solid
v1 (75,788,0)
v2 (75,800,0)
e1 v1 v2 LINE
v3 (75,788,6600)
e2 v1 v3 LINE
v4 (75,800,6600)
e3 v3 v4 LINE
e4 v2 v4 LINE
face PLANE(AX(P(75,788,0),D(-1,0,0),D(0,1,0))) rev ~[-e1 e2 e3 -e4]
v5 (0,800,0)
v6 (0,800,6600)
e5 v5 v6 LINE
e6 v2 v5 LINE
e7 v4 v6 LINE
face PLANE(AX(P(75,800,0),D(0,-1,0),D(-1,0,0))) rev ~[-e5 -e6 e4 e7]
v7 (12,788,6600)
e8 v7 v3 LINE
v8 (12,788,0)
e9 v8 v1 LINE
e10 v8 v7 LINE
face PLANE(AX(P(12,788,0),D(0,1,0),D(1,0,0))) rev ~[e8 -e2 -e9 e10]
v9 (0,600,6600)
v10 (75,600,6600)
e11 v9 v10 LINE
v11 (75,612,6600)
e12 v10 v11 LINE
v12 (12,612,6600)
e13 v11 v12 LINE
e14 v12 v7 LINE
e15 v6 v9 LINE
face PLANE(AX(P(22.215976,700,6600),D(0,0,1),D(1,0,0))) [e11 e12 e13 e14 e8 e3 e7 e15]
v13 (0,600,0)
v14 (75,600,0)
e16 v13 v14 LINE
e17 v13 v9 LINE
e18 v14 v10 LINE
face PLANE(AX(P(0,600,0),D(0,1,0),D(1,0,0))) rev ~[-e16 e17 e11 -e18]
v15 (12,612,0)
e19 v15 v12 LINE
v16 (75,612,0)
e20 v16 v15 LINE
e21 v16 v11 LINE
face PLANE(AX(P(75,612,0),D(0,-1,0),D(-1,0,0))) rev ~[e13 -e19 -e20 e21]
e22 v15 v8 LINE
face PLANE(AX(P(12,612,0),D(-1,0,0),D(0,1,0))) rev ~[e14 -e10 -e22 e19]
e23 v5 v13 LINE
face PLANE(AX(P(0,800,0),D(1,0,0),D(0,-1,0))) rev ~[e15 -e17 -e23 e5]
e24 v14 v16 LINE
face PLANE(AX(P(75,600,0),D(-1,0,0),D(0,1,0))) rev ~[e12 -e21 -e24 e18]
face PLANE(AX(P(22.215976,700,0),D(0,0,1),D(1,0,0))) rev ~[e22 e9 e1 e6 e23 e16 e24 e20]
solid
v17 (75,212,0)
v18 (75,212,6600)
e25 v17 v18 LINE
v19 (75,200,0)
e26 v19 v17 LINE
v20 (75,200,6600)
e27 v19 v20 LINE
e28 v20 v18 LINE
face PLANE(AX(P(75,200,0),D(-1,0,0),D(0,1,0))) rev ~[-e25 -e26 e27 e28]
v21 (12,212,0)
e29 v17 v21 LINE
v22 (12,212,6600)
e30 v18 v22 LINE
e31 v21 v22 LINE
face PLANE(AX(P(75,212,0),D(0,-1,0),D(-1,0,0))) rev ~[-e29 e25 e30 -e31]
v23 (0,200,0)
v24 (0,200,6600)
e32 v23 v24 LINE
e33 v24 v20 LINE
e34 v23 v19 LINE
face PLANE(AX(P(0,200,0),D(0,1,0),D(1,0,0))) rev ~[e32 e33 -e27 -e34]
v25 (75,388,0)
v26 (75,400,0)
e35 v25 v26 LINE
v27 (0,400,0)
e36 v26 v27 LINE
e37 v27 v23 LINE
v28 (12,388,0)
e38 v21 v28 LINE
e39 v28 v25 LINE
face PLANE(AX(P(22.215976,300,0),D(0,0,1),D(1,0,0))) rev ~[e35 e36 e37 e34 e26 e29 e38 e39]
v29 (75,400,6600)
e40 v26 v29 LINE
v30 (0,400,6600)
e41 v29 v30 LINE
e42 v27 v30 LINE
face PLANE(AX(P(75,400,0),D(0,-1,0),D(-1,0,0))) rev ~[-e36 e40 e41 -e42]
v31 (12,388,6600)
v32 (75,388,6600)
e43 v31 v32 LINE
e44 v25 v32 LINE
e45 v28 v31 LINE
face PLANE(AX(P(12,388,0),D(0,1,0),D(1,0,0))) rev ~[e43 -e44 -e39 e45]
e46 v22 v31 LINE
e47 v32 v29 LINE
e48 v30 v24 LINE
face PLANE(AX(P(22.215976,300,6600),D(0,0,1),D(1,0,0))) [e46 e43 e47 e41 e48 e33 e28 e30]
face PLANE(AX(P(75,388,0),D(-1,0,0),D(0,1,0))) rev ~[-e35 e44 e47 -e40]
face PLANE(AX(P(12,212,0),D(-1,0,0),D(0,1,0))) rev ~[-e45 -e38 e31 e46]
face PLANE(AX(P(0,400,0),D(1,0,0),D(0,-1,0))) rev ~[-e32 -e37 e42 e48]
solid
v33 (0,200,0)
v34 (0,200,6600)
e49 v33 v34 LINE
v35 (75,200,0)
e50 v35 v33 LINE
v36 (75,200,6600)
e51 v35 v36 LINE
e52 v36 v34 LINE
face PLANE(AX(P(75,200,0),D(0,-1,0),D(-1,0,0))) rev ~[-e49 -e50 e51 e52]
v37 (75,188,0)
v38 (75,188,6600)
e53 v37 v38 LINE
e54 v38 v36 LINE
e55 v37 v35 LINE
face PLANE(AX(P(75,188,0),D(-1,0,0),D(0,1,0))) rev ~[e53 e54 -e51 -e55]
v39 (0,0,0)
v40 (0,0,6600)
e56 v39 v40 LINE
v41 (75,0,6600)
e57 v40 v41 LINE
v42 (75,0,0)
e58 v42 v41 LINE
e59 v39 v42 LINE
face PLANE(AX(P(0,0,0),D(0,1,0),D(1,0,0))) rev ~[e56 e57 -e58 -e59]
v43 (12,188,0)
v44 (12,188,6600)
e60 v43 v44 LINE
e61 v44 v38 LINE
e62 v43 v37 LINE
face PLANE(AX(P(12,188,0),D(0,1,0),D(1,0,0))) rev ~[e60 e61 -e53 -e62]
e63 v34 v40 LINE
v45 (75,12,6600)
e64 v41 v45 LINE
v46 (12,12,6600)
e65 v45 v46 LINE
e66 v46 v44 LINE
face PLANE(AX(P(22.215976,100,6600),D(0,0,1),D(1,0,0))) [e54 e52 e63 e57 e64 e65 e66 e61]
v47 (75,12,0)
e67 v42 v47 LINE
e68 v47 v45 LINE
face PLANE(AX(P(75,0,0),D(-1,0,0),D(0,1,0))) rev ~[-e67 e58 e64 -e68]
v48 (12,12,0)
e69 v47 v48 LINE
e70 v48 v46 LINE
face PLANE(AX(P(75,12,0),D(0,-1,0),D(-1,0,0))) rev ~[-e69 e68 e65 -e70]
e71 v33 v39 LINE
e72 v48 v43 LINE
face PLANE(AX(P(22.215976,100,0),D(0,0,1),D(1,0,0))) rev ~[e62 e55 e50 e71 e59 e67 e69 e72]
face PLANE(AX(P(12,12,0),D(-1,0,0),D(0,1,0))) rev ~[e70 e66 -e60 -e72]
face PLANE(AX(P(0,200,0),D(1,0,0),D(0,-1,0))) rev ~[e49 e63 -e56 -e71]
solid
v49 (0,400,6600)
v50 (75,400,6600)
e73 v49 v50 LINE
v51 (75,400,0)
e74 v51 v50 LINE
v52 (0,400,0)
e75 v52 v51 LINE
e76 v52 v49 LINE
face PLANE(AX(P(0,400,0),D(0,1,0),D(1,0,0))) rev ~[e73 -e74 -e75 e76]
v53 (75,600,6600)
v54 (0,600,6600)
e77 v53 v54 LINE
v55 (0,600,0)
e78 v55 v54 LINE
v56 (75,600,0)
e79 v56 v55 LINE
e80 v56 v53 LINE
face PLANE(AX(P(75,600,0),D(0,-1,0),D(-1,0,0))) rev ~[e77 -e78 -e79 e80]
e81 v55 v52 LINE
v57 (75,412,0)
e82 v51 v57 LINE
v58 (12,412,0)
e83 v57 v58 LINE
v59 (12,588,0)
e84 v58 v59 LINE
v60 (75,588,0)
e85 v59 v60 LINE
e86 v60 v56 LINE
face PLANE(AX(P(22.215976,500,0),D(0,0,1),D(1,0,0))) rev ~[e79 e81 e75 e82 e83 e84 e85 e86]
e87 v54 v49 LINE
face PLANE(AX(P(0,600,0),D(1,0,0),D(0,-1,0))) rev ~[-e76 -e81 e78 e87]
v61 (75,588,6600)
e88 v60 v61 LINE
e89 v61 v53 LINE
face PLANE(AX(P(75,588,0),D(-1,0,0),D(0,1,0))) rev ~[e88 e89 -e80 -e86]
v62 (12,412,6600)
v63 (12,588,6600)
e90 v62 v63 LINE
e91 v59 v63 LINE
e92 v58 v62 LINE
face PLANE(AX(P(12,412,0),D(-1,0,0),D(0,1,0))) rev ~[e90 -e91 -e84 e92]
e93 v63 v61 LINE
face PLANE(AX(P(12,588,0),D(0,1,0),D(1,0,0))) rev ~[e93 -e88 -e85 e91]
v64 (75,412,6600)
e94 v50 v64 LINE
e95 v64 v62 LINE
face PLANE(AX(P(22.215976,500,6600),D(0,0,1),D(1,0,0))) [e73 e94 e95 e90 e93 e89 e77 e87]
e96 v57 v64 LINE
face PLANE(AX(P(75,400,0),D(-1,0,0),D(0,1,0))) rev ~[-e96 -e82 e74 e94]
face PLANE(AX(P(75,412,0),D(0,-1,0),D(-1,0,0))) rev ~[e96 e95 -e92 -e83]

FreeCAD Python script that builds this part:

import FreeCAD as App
import Part
import Sketcher
from FreeCAD import Vector

doc = App.newDocument("Part")
body = doc.addObject("PartDesign::Body", "Body")

# Sketch on XY plane
sketch1 = body.newObject("Sketcher::SketchObject", "Sketch")
sketch1.AttachmentSupport = (doc.getObject("XY_Plane"), [""])
sketch1.MapMode = "FlatFace"
sketch1.addGeometry([
    Part.LineSegment(Vector(0, 200, 0), Vector(0, 0, 0)),  # 0
    Part.LineSegment(Vector(0, 0, 0), Vector(75, 0, 0)),  # 1
    Part.LineSegment(Vector(75, 0, 0), Vector(75, 12, 0)),  # 2
    Part.LineSegment(Vector(75, 12, 0), Vector(12, 12, 0)),  # 3
    Part.LineSegment(Vector(12, 12, 0), Vector(12, 188, 0)),  # 4
    Part.LineSegment(Vector(12, 188, 0), Vector(75, 188, 0)),  # 5
    Part.LineSegment(Vector(75, 188, 0), Vector(75, 200, 0)),  # 6
    Part.LineSegment(Vector(75, 200, 0), Vector(0, 200, 0)),  # 7
], False)
sketch1.addConstraint([
    Sketcher.Constraint("Coincident", 0, 2, 1, 1),
    Sketcher.Constraint("Coincident", 1, 2, 2, 1),
    Sketcher.Constraint("Coincident", 2, 2, 3, 1),
    Sketcher.Constraint("Coincident", 3, 2, 4, 1),
    Sketcher.Constraint("Coincident", 4, 2, 5, 1),
    Sketcher.Constraint("Coincident", 5, 2, 6, 1),
    Sketcher.Constraint("Coincident", 6, 2, 7, 1),
    Sketcher.Constraint("Coincident", 7, 2, 0, 1),
    Sketcher.Constraint("Vertical", 0),
    Sketcher.Constraint("Horizontal", 1),
    Sketcher.Constraint("Vertical", 2),
    Sketcher.Constraint("Horizontal", 3),
    Sketcher.Constraint("Vertical", 4),
    Sketcher.Constraint("Horizontal", 5),
    Sketcher.Constraint("Vertical", 6),
    Sketcher.Constraint("Horizontal", 7),
    Sketcher.Constraint("Coincident", 0, 2, -1, 1),
    Sketcher.Constraint("Vertical", 2, 2, 5, 2),
    Sketcher.Constraint("Equal", 2, 6),
    Sketcher.Constraint("DistanceX", 1, 1, 1, 2, 75.0),
    Sketcher.Constraint("DistanceX", 3, 2, 3, 1, 63.0),
    Sketcher.Constraint("DistanceY", 0, 2, 0, 1, 200.0),
    Sketcher.Constraint("DistanceY", 2, 1, 2, 2, 12.0),
])
pad1 = body.newObject("PartDesign::Pad", "Pad")
pad1.Profile = sketch1
pad1.Length = 6600
body2 = doc.addObject("PartDesign::Body", "Body001")

# Sketch on XY plane
sketch2 = body2.newObject("Sketcher::SketchObject", "Sketch001")
sketch2.AttachmentSupport = (doc.getObject("XY_Plane001"), [""])
sketch2.MapMode = "FlatFace"
sketch2.addGeometry([
    Part.LineSegment(Vector(0, 400, 0), Vector(0, 200, 0)),  # 0
    Part.LineSegment(Vector(0, 200, 0), Vector(75, 200, 0)),  # 1
    Part.LineSegment(Vector(75, 200, 0), Vector(75, 212, 0)),  # 2
    Part.LineSegment(Vector(75, 212, 0), Vector(12, 212, 0)),  # 3
    Part.LineSegment(Vector(12, 212, 0), Vector(12, 388, 0)),  # 4
    Part.LineSegment(Vector(12, 388, 0), Vector(75, 388, 0)),  # 5
    Part.LineSegment(Vector(75, 388, 0), Vector(75, 400, 0)),  # 6
    Part.LineSegment(Vector(75, 400, 0), Vector(0, 400, 0)),  # 7
], False)
sketch2.addConstraint([
    Sketcher.Constraint("Coincident", 0, 2, 1, 1),
    Sketcher.Constraint("Coincident", 1, 2, 2, 1),
    Sketcher.Constraint("Coincident", 2, 2, 3, 1),
    Sketcher.Constraint("Coincident", 3, 2, 4, 1),
    Sketcher.Constraint("Coincident", 4, 2, 5, 1),
    Sketcher.Constraint("Coincident", 5, 2, 6, 1),
    Sketcher.Constraint("Coincident", 6, 2, 7, 1),
    Sketcher.Constraint("Coincident", 7, 2, 0, 1),
    Sketcher.Constraint("Vertical", 0),
    Sketcher.Constraint("Horizontal", 1),
    Sketcher.Constraint("Vertical", 2),
    Sketcher.Constraint("Horizontal", 3),
    Sketcher.Constraint("Vertical", 4),
    Sketcher.Constraint("Horizontal", 5),
    Sketcher.Constraint("Vertical", 6),
    Sketcher.Constraint("Horizontal", 7),
    Sketcher.Constraint("PointOnObject", 0, 2, -2),
    Sketcher.Constraint("Vertical", 2, 2, 5, 2),
    Sketcher.Constraint("Equal", 2, 6),
    Sketcher.Constraint("DistanceX", 1, 1, 1, 2, 75.0),
    Sketcher.Constraint("DistanceX", 3, 2, 3, 1, 63.0),
    Sketcher.Constraint("DistanceY", 0, 2, 0, 1, 200.0),
    Sketcher.Constraint("DistanceY", 2, 1, 2, 2, 12.0),
    Sketcher.Constraint("DistanceY", -1, 1, 0, 2, 200.0),
])
pad2 = body2.newObject("PartDesign::Pad", "Pad001")
pad2.Profile = sketch2
pad2.Length = 6600
body3 = doc.addObject("PartDesign::Body", "Body002")

# Sketch on XY plane
sketch3 = body3.newObject("Sketcher::SketchObject", "Sketch002")
sketch3.AttachmentSupport = (doc.getObject("XY_Plane002"), [""])
sketch3.MapMode = "FlatFace"
sketch3.addGeometry([
    Part.LineSegment(Vector(0, 600, 0), Vector(0, 400, 0)),  # 0
    Part.LineSegment(Vector(0, 400, 0), Vector(75, 400, 0)),  # 1
    Part.LineSegment(Vector(75, 400, 0), Vector(75, 412, 0)),  # 2
    Part.LineSegment(Vector(75, 412, 0), Vector(12, 412, 0)),  # 3
    Part.LineSegment(Vector(12, 412, 0), Vector(12, 588, 0)),  # 4
    Part.LineSegment(Vector(12, 588, 0), Vector(75, 588, 0)),  # 5
    Part.LineSegment(Vector(75, 588, 0), Vector(75, 600, 0)),  # 6
    Part.LineSegment(Vector(75, 600, 0), Vector(0, 600, 0)),  # 7
], False)
sketch3.addConstraint([
    Sketcher.Constraint("Coincident", 0, 2, 1, 1),
    Sketcher.Constraint("Coincident", 1, 2, 2, 1),
    Sketcher.Constraint("Coincident", 2, 2, 3, 1),
    Sketcher.Constraint("Coincident", 3, 2, 4, 1),
    Sketcher.Constraint("Coincident", 4, 2, 5, 1),
    Sketcher.Constraint("Coincident", 5, 2, 6, 1),
    Sketcher.Constraint("Coincident", 6, 2, 7, 1),
    Sketcher.Constraint("Coincident", 7, 2, 0, 1),
    Sketcher.Constraint("Vertical", 0),
    Sketcher.Constraint("Horizontal", 1),
    Sketcher.Constraint("Vertical", 2),
    Sketcher.Constraint("Horizontal", 3),
    Sketcher.Constraint("Vertical", 4),
    Sketcher.Constraint("Horizontal", 5),
    Sketcher.Constraint("Vertical", 6),
    Sketcher.Constraint("Horizontal", 7),
    Sketcher.Constraint("PointOnObject", 0, 2, -2),
    Sketcher.Constraint("Vertical", 2, 2, 5, 2),
    Sketcher.Constraint("Equal", 2, 6),
    Sketcher.Constraint("DistanceX", 1, 1, 1, 2, 75.0),
    Sketcher.Constraint("DistanceX", 3, 2, 3, 1, 63.0),
    Sketcher.Constraint("DistanceY", 0, 2, 0, 1, 200.0),
    Sketcher.Constraint("DistanceY", 2, 1, 2, 2, 12.0),
    Sketcher.Constraint("DistanceY", -1, 1, 0, 2, 400.0),
])
pad3 = body3.newObject("PartDesign::Pad", "Pad002")
pad3.Profile = sketch3
pad3.Length = 6600
body4 = doc.addObject("PartDesign::Body", "Body003")

# Sketch on XY plane
sketch4 = body4.newObject("Sketcher::SketchObject", "Sketch003")
sketch4.AttachmentSupport = (doc.getObject("XY_Plane003"), [""])
sketch4.MapMode = "FlatFace"
sketch4.addGeometry([
    Part.LineSegment(Vector(0, 800, 0), Vector(0, 600, 0)),  # 0
    Part.LineSegment(Vector(0, 600, 0), Vector(75, 600, 0)),  # 1
    Part.LineSegment(Vector(75, 600, 0), Vector(75, 612, 0)),  # 2
    Part.LineSegment(Vector(75, 612, 0), Vector(12, 612, 0)),  # 3
    Part.LineSegment(Vector(12, 612, 0), Vector(12, 788, 0)),  # 4
    Part.LineSegment(Vector(12, 788, 0), Vector(75, 788, 0)),  # 5
    Part.LineSegment(Vector(75, 788, 0), Vector(75, 800, 0)),  # 6
    Part.LineSegment(Vector(75, 800, 0), Vector(0, 800, 0)),  # 7
], False)
sketch4.addConstraint([
    Sketcher.Constraint("Coincident", 0, 2, 1, 1),
    Sketcher.Constraint("Coincident", 1, 2, 2, 1),
    Sketcher.Constraint("Coincident", 2, 2, 3, 1),
    Sketcher.Constraint("Coincident", 3, 2, 4, 1),
    Sketcher.Constraint("Coincident", 4, 2, 5, 1),
    Sketcher.Constraint("Coincident", 5, 2, 6, 1),
    Sketcher.Constraint("Coincident", 6, 2, 7, 1),
    Sketcher.Constraint("Coincident", 7, 2, 0, 1),
    Sketcher.Constraint("Vertical", 0),
    Sketcher.Constraint("Horizontal", 1),
    Sketcher.Constraint("Vertical", 2),
    Sketcher.Constraint("Horizontal", 3),
    Sketcher.Constraint("Vertical", 4),
    Sketcher.Constraint("Horizontal", 5),
    Sketcher.Constraint("Vertical", 6),
    Sketcher.Constraint("Horizontal", 7),
    Sketcher.Constraint("PointOnObject", 0, 2, -2),
    Sketcher.Constraint("Vertical", 2, 2, 5, 2),
    Sketcher.Constraint("Equal", 2, 6),
    Sketcher.Constraint("DistanceX", 1, 1, 1, 2, 75.0),
    Sketcher.Constraint("DistanceX", 3, 2, 3, 1, 63.0),
    Sketcher.Constraint("DistanceY", 0, 2, 0, 1, 200.0),
    Sketcher.Constraint("DistanceY", 2, 1, 2, 2, 12.0),
    Sketcher.Constraint("DistanceY", -1, 1, 0, 2, 600.0),
])
pad4 = body4.newObject("PartDesign::Pad", "Pad003")
pad4.Profile = sketch4
pad4.Length = 6600

doc.recompute()
